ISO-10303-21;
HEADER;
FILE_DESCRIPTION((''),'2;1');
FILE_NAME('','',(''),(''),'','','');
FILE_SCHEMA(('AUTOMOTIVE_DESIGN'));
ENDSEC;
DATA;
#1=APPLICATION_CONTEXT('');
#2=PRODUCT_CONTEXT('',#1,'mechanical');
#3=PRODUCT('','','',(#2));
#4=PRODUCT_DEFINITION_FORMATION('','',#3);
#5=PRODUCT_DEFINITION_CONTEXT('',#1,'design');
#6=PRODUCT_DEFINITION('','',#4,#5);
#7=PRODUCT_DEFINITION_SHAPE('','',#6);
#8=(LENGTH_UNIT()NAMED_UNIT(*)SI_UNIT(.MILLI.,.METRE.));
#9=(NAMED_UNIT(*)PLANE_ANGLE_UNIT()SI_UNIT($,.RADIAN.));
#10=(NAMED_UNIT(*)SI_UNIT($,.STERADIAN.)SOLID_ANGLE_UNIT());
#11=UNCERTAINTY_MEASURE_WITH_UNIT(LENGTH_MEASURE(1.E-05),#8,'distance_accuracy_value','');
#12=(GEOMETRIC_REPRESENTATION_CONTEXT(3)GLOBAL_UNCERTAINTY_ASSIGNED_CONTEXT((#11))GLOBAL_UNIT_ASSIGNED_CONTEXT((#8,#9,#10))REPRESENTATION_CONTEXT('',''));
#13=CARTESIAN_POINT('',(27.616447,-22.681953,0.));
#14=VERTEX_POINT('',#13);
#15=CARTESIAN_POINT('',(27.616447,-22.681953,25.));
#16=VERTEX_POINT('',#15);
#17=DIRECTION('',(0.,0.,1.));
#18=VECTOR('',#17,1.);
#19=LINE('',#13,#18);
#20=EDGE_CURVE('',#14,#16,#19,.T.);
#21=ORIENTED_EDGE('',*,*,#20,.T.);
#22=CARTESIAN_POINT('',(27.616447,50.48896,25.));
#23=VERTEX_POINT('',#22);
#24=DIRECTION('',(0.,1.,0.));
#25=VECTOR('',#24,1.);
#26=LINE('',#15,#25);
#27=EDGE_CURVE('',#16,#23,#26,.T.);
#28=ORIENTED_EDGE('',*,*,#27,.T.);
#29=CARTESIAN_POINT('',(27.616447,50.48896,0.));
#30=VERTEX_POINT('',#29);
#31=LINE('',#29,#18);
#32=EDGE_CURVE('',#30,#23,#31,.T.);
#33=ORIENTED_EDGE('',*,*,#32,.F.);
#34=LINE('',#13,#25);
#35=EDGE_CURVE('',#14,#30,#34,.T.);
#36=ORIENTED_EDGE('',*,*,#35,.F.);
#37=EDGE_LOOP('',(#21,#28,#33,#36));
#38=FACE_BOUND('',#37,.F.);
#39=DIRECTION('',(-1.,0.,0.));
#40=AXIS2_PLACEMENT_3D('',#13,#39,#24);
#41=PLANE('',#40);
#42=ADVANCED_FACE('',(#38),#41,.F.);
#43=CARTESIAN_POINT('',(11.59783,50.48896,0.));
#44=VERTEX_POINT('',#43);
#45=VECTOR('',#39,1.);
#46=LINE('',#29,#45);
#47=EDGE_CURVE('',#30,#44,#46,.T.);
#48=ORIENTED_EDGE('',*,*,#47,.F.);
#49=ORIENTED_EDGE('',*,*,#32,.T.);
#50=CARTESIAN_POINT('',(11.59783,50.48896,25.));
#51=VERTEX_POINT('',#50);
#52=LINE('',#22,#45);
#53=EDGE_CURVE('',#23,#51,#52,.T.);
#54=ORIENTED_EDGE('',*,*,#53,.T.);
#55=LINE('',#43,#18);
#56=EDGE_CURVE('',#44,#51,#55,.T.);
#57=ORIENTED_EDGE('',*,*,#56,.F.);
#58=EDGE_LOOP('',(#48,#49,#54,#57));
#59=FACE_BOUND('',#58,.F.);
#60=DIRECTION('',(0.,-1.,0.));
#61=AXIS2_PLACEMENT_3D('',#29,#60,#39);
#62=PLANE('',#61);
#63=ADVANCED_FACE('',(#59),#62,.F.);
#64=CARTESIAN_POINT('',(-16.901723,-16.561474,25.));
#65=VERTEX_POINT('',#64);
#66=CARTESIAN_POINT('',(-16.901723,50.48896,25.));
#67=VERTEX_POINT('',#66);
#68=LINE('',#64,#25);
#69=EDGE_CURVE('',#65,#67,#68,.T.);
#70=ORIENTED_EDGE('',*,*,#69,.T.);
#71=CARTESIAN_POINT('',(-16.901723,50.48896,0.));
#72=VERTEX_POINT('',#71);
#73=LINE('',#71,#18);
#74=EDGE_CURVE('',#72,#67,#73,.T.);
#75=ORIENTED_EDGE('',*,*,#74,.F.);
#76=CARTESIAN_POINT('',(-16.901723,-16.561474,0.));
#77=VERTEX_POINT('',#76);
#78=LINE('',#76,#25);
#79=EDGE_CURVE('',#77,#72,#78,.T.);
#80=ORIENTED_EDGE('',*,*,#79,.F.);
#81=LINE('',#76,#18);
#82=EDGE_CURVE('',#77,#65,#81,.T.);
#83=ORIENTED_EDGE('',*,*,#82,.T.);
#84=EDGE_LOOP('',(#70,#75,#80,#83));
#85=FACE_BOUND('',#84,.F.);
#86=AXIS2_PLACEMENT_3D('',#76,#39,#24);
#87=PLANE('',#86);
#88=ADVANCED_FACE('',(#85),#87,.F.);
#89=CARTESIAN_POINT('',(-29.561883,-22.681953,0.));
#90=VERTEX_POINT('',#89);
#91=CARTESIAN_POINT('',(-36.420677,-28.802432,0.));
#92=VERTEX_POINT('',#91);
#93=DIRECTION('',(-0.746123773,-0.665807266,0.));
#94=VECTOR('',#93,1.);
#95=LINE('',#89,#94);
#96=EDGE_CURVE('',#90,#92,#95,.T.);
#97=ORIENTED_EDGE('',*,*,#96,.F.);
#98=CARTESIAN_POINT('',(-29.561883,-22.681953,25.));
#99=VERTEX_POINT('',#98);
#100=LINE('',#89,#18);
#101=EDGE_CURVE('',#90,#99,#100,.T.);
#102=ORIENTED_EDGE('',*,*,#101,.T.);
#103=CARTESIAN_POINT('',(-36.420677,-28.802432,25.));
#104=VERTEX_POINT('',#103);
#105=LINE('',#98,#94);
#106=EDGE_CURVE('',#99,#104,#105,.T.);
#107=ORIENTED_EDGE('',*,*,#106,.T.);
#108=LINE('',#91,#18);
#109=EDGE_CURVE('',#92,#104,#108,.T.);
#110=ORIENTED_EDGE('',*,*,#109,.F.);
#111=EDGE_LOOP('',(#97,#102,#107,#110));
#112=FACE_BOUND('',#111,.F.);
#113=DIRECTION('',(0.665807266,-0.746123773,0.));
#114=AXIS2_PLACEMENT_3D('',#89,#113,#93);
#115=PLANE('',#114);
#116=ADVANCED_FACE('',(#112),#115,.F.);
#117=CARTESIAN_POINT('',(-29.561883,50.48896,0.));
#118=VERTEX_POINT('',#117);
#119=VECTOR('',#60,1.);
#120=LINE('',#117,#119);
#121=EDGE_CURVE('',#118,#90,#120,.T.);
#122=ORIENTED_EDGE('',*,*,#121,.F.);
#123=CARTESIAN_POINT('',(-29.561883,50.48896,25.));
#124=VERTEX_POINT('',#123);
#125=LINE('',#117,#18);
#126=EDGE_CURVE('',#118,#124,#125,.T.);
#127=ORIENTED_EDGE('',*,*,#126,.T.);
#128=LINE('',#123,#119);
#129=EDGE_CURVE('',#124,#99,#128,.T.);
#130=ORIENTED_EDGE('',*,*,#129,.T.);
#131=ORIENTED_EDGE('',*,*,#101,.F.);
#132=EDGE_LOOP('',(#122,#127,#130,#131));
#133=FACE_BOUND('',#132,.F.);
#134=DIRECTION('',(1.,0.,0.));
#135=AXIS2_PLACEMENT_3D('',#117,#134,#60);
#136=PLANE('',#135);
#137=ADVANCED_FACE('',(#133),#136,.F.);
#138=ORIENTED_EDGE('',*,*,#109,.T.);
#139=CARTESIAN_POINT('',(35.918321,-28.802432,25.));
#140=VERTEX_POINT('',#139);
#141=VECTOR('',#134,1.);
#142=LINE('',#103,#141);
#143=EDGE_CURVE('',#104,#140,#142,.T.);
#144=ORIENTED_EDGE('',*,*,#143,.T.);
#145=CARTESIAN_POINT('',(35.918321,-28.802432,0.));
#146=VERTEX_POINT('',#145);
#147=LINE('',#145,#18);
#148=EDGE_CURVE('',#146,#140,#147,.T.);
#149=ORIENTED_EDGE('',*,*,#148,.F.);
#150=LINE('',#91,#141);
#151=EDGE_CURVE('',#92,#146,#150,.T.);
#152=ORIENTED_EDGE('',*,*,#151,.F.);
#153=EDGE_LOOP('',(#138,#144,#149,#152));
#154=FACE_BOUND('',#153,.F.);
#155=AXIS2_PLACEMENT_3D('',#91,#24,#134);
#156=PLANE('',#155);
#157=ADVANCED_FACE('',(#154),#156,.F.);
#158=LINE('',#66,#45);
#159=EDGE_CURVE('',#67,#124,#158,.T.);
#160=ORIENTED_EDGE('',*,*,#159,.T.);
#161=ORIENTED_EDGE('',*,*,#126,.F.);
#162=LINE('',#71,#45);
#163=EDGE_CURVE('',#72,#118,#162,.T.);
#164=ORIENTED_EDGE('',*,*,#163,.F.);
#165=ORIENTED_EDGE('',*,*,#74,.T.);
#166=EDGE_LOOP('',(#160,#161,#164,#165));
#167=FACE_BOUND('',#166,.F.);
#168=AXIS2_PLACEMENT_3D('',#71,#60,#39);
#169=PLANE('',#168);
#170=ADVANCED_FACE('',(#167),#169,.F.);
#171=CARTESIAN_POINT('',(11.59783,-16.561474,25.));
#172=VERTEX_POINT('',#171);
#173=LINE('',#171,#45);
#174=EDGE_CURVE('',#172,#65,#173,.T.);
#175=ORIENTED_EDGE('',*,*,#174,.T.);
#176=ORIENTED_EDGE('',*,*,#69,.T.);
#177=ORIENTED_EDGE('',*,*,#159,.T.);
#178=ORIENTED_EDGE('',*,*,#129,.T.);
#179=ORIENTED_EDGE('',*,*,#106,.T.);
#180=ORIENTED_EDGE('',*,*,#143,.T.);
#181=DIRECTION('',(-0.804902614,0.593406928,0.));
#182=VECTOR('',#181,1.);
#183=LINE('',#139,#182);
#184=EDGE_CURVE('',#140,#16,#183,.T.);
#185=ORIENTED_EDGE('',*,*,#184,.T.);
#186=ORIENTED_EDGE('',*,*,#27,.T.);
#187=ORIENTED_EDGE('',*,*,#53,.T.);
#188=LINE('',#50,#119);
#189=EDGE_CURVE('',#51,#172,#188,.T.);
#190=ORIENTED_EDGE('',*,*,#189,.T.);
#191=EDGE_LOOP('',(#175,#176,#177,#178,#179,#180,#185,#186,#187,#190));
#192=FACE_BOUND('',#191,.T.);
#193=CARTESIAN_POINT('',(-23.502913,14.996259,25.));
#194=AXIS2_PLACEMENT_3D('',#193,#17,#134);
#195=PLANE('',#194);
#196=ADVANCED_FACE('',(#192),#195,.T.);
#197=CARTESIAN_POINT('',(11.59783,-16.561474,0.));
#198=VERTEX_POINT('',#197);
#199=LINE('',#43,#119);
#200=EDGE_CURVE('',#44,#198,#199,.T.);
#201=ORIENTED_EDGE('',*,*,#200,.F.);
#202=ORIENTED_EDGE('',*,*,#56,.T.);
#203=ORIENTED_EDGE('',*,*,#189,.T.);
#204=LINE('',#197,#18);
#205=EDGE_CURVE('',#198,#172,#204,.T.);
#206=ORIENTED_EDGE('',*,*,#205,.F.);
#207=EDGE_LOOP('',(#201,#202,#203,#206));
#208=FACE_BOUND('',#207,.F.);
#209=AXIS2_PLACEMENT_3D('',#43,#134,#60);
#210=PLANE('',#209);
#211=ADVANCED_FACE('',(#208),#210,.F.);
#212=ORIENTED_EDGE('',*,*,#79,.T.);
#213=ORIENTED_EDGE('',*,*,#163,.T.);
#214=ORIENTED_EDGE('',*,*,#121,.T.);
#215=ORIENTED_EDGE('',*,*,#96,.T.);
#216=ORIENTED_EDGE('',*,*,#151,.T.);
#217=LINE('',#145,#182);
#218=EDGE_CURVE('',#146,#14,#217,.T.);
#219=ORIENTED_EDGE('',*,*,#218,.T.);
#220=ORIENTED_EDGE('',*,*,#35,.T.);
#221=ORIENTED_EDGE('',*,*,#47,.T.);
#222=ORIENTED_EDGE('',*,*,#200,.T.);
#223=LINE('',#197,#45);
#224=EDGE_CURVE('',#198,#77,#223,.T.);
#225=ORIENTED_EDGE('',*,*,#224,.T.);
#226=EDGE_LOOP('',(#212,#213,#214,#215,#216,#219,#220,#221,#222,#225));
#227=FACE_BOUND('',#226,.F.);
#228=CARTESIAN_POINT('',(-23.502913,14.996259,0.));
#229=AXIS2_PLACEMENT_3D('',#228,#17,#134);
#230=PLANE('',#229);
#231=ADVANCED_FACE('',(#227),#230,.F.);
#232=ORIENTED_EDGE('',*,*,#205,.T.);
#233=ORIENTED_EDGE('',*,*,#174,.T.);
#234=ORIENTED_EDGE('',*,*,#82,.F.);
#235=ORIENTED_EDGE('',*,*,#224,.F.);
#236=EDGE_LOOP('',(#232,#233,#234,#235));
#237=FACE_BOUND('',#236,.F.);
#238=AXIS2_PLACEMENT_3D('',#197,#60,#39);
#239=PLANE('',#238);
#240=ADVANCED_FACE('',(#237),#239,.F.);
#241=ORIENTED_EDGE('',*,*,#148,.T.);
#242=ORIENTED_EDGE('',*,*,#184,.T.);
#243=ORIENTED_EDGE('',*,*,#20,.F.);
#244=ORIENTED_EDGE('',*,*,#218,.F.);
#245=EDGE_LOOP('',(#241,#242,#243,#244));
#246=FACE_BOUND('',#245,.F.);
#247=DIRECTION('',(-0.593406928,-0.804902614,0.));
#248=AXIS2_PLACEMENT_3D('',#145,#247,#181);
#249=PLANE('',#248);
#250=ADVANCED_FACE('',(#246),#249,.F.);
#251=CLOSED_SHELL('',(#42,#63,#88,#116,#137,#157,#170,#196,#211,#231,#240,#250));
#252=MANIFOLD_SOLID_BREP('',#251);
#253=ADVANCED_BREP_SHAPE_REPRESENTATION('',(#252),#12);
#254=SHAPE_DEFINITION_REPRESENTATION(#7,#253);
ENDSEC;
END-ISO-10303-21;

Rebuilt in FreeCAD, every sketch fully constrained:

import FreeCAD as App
import Part
import Sketcher
from FreeCAD import Vector
Q = App.Units.Quantity


def add_polygon(sketch, points):
    """Adds a closed chain of lines whose ends are joined by coincident constraints."""
    first, n = sketch.GeometryCount, len(points)
    for a, b in zip(points, points[1:] + points[:1]):
        sketch.addGeometry(Part.LineSegment(App.Vector(*a, 0), App.Vector(*b, 0)), False)
    for i in range(n):
        sketch.addConstraint(Sketcher.Constraint("Coincident", first + i, 2, first + (i + 1) % n, 1))

doc = App.newDocument("Part")
body = doc.addObject("PartDesign::Body", "Body")

# Sketch on XY plane
sketch1 = body.newObject("Sketcher::SketchObject", "Sketch")
sketch1.AttachmentSupport = (doc.getObject("XY_Plane"), [""])
sketch1.MapMode = "FlatFace"
add_polygon(sketch1, [(-17, -17), (-17, 50), (-30, 50), (-30, -23), (-36, -29), (36, -29), (28, -23), (28, 50), (12, 50), (12, -17)])  # lines 0-9
sketch1.addConstraint(Sketcher.Constraint("Vertical", 0))
sketch1.addConstraint(Sketcher.Constraint("Horizontal", 1))
sketch1.addConstraint(Sketcher.Constraint("Vertical", 2))
sketch1.addConstraint(Sketcher.Constraint("Horizontal", 4))
sketch1.addConstraint(Sketcher.Constraint("Vertical", 6))
sketch1.addConstraint(Sketcher.Constraint("Horizontal", 7))
sketch1.addConstraint(Sketcher.Constraint("Vertical", 8))
sketch1.addConstraint(Sketcher.Constraint("Horizontal", 9))
sketch1.addConstraint(Sketcher.Constraint("Horizontal", 2, 2, 5, 2))
sketch1.addConstraint(Sketcher.Constraint("Horizontal", 1, 2, 6, 2))
sketch1.addConstraint(Sketcher.Constraint("DistanceX", 4, 1, 4, 2, Q("72.338998 mm")))
sketch1.addConstraint(Sketcher.Constraint("DistanceX", 1, 2, 1, 1, Q("12.66016 mm")))
sketch1.addConstraint(Sketcher.Constraint("Distance", 3, Q("9.192569 mm")))
sketch1.addConstraint(Sketcher.Constraint("DistanceX", 7, 2, 7, 1, Q("16.018617 mm")))
sketch1.addConstraint(Sketcher.Constraint("DistanceX", 9, 2, 9, 1, Q("28.499553 mm")))
sketch1.addConstraint(Sketcher.Constraint("DistanceY", 0, 1, 0, 2, Q("67.050434 mm")))
sketch1.addConstraint(Sketcher.Constraint("DistanceY", 2, 2, 2, 1, Q("73.170913 mm")))
sketch1.addConstraint(Sketcher.Constraint("DistanceY", -1, 1, 0, 2, Q("50.48896 mm")))
sketch1.addConstraint(Sketcher.Constraint("DistanceY", 3, 2, -1, 1, Q("28.802432 mm")))
sketch1.addConstraint(Sketcher.Constraint("DistanceX", -1, 1, 4, 2, Q("35.918321 mm")))
pad1 = body.newObject("PartDesign::Pad", "Pad")
pad1.Profile = sketch1
pad1.Length = 25

doc.recompute()
